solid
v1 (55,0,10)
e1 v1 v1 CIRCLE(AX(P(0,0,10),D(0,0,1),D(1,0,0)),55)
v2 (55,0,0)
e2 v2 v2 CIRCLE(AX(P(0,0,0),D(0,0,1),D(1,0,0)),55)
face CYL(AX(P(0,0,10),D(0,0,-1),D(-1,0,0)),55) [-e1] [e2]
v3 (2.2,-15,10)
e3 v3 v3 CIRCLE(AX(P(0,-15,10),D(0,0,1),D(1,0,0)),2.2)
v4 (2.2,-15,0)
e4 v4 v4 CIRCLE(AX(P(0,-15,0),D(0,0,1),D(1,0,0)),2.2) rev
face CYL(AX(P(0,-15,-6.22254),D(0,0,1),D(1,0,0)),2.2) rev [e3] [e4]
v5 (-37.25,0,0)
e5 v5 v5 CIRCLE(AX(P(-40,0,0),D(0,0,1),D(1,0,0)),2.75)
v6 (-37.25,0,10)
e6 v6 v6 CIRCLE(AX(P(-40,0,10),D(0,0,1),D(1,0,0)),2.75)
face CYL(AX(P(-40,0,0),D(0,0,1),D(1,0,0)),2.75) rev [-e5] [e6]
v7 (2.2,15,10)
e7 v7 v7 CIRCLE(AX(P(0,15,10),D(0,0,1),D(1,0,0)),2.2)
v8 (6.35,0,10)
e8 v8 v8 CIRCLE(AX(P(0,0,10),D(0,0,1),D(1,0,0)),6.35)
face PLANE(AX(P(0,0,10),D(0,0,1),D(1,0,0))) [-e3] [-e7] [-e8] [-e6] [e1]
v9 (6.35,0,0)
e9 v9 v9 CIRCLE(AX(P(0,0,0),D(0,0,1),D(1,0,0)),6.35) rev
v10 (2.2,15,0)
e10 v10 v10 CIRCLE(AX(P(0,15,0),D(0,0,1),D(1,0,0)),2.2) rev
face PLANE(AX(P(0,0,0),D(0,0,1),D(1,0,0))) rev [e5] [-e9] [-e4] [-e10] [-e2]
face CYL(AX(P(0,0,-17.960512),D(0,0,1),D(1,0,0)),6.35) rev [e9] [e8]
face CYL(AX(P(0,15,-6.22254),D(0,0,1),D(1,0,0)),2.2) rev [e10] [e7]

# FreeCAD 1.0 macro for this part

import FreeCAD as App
import Part
import Sketcher

V = App.Vector

doc = App.newDocument("Part")
body = doc.addObject("PartDesign::Body", "Body")

sketch1 = body.newObject("Sketcher::SketchObject", "Sketch")
sketch1.AttachmentSupport = (doc.getObject("XY_Plane"), [""])
sketch1.MapMode = "FlatFace"
sketch1.addGeometry(Part.Circle(V(0, 0, 0), V(0, 0, 1), 55), False)
sketch1.addConstraint(Sketcher.Constraint("Coincident", 0, 3, -1, 1))
sketch1.addConstraint(Sketcher.Constraint("Diameter", 0, 110.0))
pad1 = body.newObject("PartDesign::Pad", "Pad")
pad1.Profile = sketch1
pad1.Length = 10

sketch2 = body.newObject("Sketcher::SketchObject", "Sketch001")
sketch2.AttachmentSupport = (doc.getObject("XY_Plane"), [""])
sketch2.MapMode = "FlatFace"
sketch2.AttachmentOffset = App.Placement(V(0, 0, 10), App.Rotation())
sketch2.addGeometry(Part.Circle(V(0, 0, 0), V(0, 0, 1), 6), False)
sketch2.addConstraint(Sketcher.Constraint("Coincident", 0, 3, -1, 1))
sketch2.addConstraint(Sketcher.Constraint("Diameter", 0, 12.7))
pocket1 = body.newObject("PartDesign::Pocket", "Pocket")
pocket1.Profile = sketch2
pocket1.Length = 10

sketch3 = body.newObject("Sketcher::SketchObject", "Sketch002")
sketch3.AttachmentSupport = (doc.getObject("XY_Plane"), [""])
sketch3.MapMode = "FlatFace"
sketch3.AttachmentOffset = App.Placement(V(0, 0, 10), App.Rotation())
sketch3.addGeometry(Part.Circle(V(0, 15, 0), V(0, 0, 1), 2.2), False)
sketch3.addGeometry(Part.Circle(V(0, -15, 0), V(0, 0, 1), 2.2), False)
sketch3.addConstraint(Sketcher.Constraint("Equal", 0, 1))
sketch3.addConstraint(Sketcher.Constraint("Symmetric", 0, 3, 1, 3, -1, 1))
sketch3.addConstraint(Sketcher.Constraint("PointOnObject", 0, 3, -2))
sketch3.addConstraint(Sketcher.Constraint("Diameter", 0, 4.4))
sketch3.addConstraint(Sketcher.Constraint("DistanceY", -1, 1, 0, 3, 15.0))
pocket2 = body.newObject("PartDesign::Pocket", "Pocket001")
pocket2.Profile = sketch3
pocket2.Length = 10

sketch4 = body.newObject("Sketcher::SketchObject", "Sketch003")
sketch4.AttachmentSupport = (doc.getObject("XY_Plane"), [""])
sketch4.MapMode = "FlatFace"
sketch4.AttachmentOffset = App.Placement(V(0, 0, 10), App.Rotation())
sketch4.addGeometry(Part.Circle(V(-40, 0, 0), V(0, 0, 1), 2.8), False)
sketch4.addConstraint(Sketcher.Constraint("PointOnObject", 0, 3, -1))
sketch4.addConstraint(Sketcher.Constraint("Diameter", 0, 5.5))
sketch4.addConstraint(Sketcher.Constraint("DistanceX", 0, 3, -1, 1, 40.0))
pocket3 = body.newObject("PartDesign::Pocket", "Pocket002")
pocket3.Profile = sketch4
pocket3.Length = 10

doc.recompute()
